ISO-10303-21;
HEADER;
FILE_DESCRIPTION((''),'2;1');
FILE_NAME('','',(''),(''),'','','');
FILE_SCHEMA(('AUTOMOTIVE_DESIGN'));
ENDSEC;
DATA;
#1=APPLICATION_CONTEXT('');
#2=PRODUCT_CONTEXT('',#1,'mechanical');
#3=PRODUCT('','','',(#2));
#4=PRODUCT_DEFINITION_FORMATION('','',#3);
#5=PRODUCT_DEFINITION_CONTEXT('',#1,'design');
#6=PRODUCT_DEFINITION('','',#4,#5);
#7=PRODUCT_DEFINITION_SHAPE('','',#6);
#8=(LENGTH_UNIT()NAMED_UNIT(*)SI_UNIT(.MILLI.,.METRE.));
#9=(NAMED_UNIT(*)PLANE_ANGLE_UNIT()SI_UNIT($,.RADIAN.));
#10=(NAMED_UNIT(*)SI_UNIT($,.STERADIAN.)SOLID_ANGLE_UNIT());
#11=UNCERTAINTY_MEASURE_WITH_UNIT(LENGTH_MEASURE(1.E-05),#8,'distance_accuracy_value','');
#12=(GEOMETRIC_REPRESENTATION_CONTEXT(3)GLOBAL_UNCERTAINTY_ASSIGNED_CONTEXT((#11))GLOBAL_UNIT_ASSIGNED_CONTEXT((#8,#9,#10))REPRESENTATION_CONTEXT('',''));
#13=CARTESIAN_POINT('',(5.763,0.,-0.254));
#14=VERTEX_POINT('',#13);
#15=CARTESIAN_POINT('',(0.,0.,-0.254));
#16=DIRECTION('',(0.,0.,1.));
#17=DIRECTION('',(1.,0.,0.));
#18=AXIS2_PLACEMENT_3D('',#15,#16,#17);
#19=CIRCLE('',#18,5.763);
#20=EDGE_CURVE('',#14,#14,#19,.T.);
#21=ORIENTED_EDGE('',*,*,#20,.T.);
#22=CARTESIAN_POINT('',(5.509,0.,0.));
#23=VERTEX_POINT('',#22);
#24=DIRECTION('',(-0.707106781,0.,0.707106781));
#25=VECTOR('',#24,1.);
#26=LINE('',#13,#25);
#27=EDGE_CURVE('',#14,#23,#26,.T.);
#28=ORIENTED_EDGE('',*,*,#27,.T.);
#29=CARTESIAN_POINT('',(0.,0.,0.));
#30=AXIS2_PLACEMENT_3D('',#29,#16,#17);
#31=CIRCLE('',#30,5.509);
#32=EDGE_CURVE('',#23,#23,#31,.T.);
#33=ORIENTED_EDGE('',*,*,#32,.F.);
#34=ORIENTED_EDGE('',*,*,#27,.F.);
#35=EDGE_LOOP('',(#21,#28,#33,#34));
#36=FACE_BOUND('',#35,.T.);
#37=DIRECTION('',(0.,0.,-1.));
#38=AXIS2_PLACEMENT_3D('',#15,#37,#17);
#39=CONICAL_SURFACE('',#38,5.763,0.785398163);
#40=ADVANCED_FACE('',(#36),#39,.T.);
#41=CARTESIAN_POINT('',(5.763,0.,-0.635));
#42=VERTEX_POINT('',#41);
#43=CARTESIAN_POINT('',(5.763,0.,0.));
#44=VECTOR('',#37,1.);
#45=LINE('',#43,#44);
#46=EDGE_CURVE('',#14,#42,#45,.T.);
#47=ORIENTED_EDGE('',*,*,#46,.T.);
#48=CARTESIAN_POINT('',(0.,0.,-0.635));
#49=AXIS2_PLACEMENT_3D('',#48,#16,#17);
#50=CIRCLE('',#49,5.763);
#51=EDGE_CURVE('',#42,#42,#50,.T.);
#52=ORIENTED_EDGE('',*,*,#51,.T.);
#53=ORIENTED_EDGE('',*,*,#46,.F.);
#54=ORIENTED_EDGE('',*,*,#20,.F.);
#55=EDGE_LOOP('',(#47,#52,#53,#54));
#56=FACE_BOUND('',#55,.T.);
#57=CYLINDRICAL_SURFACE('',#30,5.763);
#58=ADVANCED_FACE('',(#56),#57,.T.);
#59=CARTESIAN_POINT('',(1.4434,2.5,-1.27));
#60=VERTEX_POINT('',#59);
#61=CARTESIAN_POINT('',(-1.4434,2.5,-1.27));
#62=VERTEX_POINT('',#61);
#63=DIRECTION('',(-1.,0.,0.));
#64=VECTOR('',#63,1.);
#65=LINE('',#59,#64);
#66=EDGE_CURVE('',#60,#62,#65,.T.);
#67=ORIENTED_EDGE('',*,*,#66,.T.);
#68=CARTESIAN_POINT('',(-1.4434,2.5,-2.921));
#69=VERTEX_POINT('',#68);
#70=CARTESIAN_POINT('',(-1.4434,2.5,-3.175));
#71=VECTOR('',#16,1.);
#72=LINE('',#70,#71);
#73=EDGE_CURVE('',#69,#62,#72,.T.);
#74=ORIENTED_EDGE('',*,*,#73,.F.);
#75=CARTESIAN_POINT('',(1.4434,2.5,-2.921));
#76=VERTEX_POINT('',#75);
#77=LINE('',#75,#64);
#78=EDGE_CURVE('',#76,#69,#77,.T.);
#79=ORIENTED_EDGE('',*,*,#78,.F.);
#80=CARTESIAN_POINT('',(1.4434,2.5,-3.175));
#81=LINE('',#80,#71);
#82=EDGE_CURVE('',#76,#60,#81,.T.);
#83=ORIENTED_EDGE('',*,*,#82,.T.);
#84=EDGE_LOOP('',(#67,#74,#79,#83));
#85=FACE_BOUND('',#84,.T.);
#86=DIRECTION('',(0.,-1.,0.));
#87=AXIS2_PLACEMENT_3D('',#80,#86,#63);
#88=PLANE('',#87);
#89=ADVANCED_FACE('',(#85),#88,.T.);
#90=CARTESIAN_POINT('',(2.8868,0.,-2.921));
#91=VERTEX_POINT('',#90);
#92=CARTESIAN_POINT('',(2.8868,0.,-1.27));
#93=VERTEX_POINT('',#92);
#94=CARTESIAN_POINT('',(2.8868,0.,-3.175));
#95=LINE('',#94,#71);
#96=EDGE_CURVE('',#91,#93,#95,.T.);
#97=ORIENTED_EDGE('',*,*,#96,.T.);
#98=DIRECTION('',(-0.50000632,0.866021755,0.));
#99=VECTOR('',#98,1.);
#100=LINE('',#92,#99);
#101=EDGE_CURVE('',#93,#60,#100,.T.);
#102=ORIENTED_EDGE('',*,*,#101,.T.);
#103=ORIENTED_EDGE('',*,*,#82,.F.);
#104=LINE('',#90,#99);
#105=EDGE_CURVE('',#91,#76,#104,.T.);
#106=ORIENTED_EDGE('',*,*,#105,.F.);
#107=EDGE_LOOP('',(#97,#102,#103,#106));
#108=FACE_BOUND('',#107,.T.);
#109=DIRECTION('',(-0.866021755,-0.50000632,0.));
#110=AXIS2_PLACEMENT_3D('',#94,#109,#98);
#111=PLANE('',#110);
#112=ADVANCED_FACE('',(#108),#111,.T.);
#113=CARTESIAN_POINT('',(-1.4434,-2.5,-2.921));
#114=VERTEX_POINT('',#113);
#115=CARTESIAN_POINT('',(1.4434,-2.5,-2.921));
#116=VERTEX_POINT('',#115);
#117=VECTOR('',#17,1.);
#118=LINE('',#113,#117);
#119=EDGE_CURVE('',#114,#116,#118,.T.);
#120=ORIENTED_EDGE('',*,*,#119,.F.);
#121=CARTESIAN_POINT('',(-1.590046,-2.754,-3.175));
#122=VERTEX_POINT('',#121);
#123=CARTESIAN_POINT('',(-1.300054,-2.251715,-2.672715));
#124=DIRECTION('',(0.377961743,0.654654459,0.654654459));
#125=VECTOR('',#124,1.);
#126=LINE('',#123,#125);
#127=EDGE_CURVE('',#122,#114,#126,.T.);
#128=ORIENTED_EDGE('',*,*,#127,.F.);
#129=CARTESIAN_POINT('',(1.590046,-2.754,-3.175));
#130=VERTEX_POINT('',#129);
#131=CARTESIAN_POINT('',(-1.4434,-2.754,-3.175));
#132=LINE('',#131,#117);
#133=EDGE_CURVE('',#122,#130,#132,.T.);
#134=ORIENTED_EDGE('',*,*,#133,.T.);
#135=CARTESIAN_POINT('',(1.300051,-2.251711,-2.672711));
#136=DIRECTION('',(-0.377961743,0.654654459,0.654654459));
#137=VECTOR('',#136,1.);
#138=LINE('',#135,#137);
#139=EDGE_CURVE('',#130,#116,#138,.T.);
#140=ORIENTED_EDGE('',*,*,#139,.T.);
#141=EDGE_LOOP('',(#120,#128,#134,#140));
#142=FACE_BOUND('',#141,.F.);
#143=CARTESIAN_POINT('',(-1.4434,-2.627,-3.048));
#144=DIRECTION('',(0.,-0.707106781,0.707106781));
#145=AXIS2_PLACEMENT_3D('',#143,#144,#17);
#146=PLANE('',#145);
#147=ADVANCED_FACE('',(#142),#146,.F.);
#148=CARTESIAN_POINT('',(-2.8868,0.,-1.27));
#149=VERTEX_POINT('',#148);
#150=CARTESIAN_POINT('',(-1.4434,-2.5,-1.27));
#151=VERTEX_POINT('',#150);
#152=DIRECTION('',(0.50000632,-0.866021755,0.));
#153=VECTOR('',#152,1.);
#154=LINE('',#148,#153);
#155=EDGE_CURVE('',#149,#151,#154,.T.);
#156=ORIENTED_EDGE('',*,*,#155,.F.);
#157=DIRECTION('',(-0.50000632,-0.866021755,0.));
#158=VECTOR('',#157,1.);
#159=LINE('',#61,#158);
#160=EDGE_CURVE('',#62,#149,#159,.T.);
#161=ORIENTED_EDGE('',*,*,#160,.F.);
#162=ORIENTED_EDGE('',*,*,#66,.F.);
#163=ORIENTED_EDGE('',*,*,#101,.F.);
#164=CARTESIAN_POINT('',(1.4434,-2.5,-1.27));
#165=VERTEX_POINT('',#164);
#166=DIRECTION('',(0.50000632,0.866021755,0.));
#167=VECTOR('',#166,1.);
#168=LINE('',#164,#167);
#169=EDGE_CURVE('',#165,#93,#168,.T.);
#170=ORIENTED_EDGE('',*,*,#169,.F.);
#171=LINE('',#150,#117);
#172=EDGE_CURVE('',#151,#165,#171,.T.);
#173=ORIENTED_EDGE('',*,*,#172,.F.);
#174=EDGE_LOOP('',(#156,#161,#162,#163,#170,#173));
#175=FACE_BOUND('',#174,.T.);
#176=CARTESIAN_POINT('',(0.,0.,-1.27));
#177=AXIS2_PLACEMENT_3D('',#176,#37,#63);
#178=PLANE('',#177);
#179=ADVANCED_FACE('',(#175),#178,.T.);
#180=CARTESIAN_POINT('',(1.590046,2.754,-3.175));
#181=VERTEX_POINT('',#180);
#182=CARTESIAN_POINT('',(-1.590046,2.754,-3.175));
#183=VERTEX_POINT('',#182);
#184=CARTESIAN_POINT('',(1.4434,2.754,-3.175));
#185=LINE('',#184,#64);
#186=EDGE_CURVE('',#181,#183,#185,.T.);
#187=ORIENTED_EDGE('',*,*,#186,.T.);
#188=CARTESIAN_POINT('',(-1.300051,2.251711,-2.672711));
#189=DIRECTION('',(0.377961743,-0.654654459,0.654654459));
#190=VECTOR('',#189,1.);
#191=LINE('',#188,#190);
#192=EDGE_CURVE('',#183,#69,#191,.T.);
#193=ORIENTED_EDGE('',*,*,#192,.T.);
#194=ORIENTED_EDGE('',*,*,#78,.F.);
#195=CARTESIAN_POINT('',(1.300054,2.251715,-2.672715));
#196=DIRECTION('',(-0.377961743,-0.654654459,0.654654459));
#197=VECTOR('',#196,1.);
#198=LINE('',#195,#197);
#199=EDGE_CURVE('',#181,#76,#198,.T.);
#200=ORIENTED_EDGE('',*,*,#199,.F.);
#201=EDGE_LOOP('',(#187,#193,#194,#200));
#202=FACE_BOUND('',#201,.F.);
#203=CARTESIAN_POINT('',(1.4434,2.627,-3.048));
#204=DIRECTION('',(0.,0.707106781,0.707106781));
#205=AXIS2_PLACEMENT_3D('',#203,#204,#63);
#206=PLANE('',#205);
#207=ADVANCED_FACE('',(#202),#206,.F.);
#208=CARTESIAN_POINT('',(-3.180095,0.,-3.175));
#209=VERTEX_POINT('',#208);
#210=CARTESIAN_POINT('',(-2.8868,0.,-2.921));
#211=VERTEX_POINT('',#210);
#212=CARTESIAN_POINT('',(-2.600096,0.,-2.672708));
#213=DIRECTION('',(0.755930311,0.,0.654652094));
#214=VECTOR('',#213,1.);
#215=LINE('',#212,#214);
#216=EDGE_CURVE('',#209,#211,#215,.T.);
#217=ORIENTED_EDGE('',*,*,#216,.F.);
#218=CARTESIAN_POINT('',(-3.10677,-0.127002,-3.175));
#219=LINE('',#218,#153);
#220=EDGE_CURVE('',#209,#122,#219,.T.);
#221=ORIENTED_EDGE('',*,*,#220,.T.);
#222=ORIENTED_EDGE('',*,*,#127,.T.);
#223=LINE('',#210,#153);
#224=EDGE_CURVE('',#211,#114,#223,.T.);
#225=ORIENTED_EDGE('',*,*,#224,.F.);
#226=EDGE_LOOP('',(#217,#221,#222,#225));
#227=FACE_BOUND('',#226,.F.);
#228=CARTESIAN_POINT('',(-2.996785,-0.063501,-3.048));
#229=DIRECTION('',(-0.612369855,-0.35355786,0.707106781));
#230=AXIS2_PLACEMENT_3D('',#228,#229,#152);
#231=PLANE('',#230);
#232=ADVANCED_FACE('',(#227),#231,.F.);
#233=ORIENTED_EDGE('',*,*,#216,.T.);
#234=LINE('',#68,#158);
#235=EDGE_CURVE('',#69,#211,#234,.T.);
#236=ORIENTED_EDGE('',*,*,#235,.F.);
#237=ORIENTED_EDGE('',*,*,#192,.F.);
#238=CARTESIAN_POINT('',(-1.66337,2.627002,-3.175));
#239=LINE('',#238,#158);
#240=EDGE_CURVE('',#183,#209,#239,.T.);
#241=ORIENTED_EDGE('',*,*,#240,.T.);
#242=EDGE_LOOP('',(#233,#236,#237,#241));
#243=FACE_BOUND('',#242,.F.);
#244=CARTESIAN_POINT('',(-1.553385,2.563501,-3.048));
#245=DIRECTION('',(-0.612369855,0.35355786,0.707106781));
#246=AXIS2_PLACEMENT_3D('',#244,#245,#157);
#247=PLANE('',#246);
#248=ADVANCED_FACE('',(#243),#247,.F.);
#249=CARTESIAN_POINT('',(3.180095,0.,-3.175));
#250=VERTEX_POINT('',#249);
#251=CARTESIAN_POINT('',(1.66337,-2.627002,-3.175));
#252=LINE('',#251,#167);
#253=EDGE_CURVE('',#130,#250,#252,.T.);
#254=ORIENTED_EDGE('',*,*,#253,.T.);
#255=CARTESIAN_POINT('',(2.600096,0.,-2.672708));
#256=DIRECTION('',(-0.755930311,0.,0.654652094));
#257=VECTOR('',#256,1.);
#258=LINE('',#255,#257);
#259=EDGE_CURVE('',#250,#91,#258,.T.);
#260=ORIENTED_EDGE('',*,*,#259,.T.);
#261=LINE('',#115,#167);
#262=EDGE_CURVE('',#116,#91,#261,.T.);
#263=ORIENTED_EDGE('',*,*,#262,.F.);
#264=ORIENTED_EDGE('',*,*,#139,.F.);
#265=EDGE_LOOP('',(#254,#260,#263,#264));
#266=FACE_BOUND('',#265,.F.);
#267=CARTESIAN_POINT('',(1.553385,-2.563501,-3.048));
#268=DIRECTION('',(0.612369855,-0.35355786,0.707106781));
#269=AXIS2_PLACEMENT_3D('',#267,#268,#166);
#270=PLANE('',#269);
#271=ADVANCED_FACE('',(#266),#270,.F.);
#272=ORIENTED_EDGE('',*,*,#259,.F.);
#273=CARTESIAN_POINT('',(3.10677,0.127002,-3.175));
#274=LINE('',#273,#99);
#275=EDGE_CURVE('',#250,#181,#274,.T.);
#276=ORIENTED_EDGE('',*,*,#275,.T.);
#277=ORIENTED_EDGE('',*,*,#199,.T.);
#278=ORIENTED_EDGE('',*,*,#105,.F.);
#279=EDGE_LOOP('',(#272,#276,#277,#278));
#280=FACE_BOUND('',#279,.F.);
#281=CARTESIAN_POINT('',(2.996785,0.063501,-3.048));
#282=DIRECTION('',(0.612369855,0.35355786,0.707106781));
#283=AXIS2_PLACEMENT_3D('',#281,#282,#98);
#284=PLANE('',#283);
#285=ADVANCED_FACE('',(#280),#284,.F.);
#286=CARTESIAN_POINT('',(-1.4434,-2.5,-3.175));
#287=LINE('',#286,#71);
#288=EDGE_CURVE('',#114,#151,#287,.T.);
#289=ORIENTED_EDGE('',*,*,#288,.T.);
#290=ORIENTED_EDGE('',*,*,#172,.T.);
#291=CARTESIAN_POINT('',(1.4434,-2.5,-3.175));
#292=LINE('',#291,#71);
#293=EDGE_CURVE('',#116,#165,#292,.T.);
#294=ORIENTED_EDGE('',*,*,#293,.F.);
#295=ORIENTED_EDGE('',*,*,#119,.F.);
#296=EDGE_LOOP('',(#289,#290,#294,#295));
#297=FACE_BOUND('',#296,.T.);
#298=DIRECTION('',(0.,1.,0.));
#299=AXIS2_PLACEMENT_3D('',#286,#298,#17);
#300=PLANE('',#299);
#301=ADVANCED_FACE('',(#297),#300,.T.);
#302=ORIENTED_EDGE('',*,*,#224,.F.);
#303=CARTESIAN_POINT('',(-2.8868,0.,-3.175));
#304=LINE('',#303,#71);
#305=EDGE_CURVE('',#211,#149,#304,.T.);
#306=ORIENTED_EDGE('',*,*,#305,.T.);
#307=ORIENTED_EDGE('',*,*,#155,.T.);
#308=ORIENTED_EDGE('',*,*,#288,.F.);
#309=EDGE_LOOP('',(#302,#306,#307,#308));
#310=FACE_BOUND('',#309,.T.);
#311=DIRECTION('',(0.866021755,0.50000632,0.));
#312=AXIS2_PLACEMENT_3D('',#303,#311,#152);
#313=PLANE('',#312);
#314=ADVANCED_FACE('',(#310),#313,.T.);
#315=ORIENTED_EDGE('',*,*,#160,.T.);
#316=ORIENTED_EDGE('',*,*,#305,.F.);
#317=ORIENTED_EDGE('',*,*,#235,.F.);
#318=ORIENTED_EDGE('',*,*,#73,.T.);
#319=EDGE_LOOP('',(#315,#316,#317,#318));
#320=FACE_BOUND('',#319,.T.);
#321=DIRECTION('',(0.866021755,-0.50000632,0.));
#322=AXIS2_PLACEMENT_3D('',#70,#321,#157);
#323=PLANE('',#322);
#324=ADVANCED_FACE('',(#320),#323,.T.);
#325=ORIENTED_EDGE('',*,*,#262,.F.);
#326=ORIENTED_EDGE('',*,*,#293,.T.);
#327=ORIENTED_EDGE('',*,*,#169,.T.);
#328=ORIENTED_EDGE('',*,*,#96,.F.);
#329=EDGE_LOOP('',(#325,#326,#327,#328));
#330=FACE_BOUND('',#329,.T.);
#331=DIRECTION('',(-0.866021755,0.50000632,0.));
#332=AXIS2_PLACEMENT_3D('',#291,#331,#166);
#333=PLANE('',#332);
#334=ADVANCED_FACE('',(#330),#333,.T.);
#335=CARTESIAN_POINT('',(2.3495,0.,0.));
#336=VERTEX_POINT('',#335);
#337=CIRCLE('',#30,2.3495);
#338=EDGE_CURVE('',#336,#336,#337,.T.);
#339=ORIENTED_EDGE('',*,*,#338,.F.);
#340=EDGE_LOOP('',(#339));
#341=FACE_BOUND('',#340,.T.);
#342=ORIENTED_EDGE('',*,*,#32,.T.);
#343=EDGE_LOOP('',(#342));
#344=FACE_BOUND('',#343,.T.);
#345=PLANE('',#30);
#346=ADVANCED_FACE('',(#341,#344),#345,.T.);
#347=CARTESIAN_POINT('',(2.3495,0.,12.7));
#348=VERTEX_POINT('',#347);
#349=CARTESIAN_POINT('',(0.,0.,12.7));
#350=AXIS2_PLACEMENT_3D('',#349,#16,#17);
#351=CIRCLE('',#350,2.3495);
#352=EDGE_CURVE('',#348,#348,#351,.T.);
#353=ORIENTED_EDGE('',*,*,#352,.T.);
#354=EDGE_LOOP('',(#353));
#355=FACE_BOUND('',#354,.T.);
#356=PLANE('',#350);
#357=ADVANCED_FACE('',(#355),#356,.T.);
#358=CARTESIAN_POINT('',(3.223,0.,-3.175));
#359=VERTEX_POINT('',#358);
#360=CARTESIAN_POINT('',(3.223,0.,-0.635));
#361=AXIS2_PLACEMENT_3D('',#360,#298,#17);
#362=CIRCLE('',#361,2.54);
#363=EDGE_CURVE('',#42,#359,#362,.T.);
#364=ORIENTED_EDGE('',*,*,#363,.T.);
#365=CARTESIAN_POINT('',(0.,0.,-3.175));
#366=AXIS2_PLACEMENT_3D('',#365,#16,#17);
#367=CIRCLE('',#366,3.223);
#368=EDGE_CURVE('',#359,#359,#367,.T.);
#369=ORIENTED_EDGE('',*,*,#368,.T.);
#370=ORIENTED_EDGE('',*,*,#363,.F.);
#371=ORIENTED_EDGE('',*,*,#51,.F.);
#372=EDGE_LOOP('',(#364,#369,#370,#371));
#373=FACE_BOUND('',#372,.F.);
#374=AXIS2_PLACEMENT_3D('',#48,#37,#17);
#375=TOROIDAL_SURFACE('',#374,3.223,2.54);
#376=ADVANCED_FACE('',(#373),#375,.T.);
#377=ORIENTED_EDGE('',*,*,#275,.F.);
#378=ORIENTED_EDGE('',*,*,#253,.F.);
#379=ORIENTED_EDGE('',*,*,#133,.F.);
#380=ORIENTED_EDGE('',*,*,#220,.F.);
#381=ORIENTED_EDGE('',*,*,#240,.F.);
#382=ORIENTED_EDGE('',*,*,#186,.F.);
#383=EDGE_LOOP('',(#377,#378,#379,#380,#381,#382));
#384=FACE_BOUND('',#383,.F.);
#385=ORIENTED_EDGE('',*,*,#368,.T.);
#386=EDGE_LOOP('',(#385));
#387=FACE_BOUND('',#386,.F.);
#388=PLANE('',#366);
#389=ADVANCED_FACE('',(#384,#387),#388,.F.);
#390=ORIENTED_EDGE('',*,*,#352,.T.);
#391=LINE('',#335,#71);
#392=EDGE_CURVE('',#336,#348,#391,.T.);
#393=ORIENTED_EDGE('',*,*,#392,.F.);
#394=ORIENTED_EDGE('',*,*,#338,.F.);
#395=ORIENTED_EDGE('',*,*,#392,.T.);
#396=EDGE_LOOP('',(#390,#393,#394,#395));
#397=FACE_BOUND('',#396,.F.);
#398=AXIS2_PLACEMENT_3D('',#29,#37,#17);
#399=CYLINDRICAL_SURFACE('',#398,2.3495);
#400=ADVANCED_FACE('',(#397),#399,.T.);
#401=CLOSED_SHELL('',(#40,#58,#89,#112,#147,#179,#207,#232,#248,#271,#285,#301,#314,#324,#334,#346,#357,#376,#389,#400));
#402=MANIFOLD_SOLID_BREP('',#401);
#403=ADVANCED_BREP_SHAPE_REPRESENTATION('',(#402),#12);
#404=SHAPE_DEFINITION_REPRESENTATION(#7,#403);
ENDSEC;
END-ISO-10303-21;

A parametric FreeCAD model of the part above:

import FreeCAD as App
import Part
import Sketcher
Q = App.Units.Quantity


def edges_at(feature, points):
    """Names of the edges that pass closest to the given points."""
    edges = feature.Shape.Edges
    near = lambda p: min(range(len(edges)), key=lambda i: edges[i].distToShape(Part.Vertex(*p))[0])
    return sorted({f"Edge{near(p) + 1}" for p in points})


def add_polygon(sketch, points):
    """Adds a closed chain of lines whose ends are joined by coincident constraints."""
    first, n = sketch.GeometryCount, len(points)
    for a, b in zip(points, points[1:] + points[:1]):
        sketch.addGeometry(Part.LineSegment(App.Vector(*a, 0), App.Vector(*b, 0)), False)
    for i in range(n):
        sketch.addConstraint(Sketcher.Constraint("Coincident", first + i, 2, first + (i + 1) % n, 1))

doc = App.newDocument("Part")
body = doc.addObject("PartDesign::Body", "Body")

# Sketch on XY plane
sketch1 = body.newObject("Sketcher::SketchObject", "Sketch")
sketch1.AttachmentSupport = (doc.getObject("XY_Plane"), [""])
sketch1.MapMode = "FlatFace"
sketch1.addGeometry(Part.Circle(App.Vector(0, 0, 0), App.Vector(0, 0, 1), 2.3), False)
sketch1.addConstraint([
    Sketcher.Constraint("Coincident", 0, 3, -1, 1),
    Sketcher.Constraint("Diameter", 0, Q("0.185 in")),
])
pad1 = body.newObject("PartDesign::Pad", "Pad")
pad1.Profile = sketch1
pad1.Length = Q("0.5 in")

# Sketch on XY plane
sketch2 = body.newObject("Sketcher::SketchObject", "Sketch001")
sketch2.AttachmentSupport = (doc.getObject("XY_Plane"), [""])
sketch2.MapMode = "FlatFace"
sketch2.addGeometry(Part.Circle(App.Vector(0, 0, 0), App.Vector(0, 0, 1), 6), False)
sketch2.addConstraint([
    Sketcher.Constraint("Coincident", 0, 3, -1, 1),
    Sketcher.Constraint("Diameter", 0, 11.526),
])
pad2 = body.newObject("PartDesign::Pad", "Pad001")
pad2.Profile = sketch2
pad2.Length = Q("0.125 in")
pad2.Reversed = True
doc.recompute()

fillet = body.newObject("PartDesign::Fillet", "Fillet")
fillet.Base = (pad2, edges_at(pad2, [(-5.763, 0, -3.175)]))
fillet.Radius = Q("0.1 in")

# Sketch on XY plane
sketch3 = body.newObject("Sketcher::SketchObject", "Sketch002")
sketch3.AttachmentSupport = (doc.getObject("XY_Plane"), [""])
sketch3.MapMode = "FlatFace"
sketch3.AttachmentOffset = App.Placement(App.Vector(0, 0, -0.125 * 25.4), App.Rotation())
add_polygon(sketch3, [(-1.4, -2.5), (-2.9, 0), (-1.4, 2.5), (1.4, 2.5), (2.9, 0), (1.4, -2.5)])  # lines 0-5
sketch3.addConstraint([
    Sketcher.Constraint("Horizontal", 2),
    Sketcher.Constraint("Horizontal", 5),
    Sketcher.Constraint("Symmetric", 0, 2, 3, 2, -1, 1),
    Sketcher.Constraint("Symmetric", 1, 2, 4, 2, -1, 1),
    Sketcher.Constraint("PointOnObject", 0, 2, -1),
    Sketcher.Constraint("Parallel", 0, 3),
    Sketcher.Constraint("Vertical", 2, 2, 4, 2),
    Sketcher.Constraint("Angle", 0, Q("120.0004 deg")),
    Sketcher.Constraint("DistanceY", 4, 2, 2, 2, 5.0),
    Sketcher.Constraint("DistanceX", 2, 1, 2, 2, 2.8868),
])
pocket1 = body.newObject("PartDesign::Pocket", "Pocket")
pocket1.Profile = sketch3
pocket1.Length = Q("0.075 in")
pocket1.Reversed = True
doc.recompute()

chamfer = body.newObject("PartDesign::Chamfer", "Chamfer")
chamfer.Base = (pocket1, edges_at(pocket1, [
    (2.165, 1.25, -3.175),
    (0, 2.5, -3.175),
    (-2.165, 1.25, -3.175),
    (2.165, -1.25, -3.175),
    (0, -2.5, -3.175),
    (-2.165, -1.25, -3.175),
    (-5.763, 0, 0),
]))
chamfer.Size = Q("0.01 in")

doc.recompute()
